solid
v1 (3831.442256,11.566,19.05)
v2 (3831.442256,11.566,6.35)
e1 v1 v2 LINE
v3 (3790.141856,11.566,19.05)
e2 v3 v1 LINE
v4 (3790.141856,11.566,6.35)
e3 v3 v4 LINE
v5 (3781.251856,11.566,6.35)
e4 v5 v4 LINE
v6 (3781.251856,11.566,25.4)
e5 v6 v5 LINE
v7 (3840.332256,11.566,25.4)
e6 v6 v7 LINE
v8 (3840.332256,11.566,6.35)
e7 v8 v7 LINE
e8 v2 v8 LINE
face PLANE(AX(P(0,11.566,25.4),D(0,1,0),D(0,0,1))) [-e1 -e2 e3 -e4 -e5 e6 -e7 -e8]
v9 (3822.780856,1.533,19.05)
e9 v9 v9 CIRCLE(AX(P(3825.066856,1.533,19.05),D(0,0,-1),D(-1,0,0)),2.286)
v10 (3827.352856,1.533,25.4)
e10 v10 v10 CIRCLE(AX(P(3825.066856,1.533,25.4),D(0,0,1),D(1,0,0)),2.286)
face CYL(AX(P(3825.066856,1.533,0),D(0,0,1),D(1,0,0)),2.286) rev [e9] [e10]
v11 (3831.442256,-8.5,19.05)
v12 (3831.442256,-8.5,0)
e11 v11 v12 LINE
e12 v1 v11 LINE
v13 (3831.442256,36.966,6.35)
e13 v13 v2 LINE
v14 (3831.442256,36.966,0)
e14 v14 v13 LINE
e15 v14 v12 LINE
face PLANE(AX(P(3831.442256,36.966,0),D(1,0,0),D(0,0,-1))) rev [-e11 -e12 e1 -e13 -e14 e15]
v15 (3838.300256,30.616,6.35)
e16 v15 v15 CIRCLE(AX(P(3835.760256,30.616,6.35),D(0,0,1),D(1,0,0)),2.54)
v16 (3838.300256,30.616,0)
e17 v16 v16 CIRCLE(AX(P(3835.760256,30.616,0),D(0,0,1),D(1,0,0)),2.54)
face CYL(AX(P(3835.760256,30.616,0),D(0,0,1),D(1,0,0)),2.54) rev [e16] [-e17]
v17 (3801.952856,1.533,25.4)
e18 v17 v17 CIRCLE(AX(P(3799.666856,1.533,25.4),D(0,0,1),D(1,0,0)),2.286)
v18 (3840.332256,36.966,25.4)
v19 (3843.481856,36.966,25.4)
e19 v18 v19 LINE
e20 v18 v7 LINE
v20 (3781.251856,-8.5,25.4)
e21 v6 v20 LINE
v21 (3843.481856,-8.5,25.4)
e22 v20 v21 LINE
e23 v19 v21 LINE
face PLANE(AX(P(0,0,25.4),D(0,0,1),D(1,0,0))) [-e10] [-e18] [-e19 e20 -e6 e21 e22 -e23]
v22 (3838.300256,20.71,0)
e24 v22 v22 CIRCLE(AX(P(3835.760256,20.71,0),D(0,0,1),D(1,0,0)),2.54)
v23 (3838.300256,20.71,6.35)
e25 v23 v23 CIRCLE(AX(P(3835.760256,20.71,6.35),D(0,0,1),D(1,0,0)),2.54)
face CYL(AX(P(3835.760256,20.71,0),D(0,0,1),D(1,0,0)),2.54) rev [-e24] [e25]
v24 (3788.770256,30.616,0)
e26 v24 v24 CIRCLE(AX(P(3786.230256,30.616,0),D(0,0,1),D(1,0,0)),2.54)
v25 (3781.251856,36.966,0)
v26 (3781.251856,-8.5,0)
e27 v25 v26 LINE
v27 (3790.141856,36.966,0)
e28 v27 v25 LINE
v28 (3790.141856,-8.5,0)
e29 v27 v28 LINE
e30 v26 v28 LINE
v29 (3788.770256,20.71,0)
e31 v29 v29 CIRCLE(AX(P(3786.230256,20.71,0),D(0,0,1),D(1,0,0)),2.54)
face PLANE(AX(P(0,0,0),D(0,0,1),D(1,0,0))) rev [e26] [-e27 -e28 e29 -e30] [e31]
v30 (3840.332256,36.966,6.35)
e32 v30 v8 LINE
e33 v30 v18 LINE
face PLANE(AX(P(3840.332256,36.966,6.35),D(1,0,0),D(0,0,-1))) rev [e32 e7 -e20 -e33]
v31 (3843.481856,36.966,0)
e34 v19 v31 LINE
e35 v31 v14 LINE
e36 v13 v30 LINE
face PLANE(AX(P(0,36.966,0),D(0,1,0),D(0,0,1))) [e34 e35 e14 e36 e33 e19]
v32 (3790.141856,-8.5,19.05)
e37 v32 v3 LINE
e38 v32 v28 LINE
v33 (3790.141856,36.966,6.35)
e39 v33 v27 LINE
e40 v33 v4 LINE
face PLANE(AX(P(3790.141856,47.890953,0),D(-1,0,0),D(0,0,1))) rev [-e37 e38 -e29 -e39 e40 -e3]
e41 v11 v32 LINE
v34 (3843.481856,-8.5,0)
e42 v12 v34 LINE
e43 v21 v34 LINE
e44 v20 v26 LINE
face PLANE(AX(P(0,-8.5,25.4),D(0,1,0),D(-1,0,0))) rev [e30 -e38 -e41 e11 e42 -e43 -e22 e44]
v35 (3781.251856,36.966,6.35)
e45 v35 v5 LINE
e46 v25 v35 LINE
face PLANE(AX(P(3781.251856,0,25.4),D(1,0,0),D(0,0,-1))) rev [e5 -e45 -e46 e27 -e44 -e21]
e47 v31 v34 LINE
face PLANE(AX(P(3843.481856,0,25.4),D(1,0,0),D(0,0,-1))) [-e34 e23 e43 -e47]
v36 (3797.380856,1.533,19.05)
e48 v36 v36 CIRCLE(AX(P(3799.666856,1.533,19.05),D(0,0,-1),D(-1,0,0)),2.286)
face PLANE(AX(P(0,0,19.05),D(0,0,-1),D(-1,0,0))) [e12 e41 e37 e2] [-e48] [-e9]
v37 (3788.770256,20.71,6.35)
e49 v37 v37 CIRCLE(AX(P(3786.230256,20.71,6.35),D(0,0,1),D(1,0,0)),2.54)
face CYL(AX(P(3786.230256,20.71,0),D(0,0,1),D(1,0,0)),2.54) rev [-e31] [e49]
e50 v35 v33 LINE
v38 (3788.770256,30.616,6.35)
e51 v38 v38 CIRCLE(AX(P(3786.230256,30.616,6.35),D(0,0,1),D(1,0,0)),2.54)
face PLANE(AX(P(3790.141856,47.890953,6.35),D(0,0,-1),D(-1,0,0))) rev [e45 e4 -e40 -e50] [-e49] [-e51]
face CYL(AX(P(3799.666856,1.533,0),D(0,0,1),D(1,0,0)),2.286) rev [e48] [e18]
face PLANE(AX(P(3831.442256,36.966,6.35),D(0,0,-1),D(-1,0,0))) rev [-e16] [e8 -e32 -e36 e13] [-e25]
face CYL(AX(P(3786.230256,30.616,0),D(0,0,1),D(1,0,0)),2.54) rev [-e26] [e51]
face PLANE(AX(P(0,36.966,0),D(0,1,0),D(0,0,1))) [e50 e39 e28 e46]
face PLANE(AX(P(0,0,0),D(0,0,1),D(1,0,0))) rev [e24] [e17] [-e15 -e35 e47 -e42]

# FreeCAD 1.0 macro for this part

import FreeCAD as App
import Part
import Sketcher

V = App.Vector
Q = App.Units.Quantity

doc = App.newDocument("Part")
body = doc.addObject("PartDesign::Body", "Body")

sketch1 = body.newObject("Sketcher::SketchObject", "Sketch")
sketch1.AttachmentSupport = (doc.getObject("XY_Plane"), [""])
sketch1.MapMode = "FlatFace"
sketch1.addGeometry([
    Part.LineSegment(V(3781, 12, 0), V(3781, -8, 0)),
    Part.LineSegment(V(3781, -8, 0), V(3843, -8, 0)),
    Part.LineSegment(V(3843, -8, 0), V(3843, 12, 0)),
    Part.LineSegment(V(3843, 12, 0), V(3781, 12, 0)),
], False)
sketch1.addConstraint([
    Sketcher.Constraint("Coincident", 0, 2, 1, 1),
    Sketcher.Constraint("Coincident", 1, 2, 2, 1),
    Sketcher.Constraint("Coincident", 2, 2, 3, 1),
    Sketcher.Constraint("Coincident", 3, 2, 0, 1),
    Sketcher.Constraint("Vertical", 0),
    Sketcher.Constraint("Horizontal", 1),
    Sketcher.Constraint("Vertical", 2),
    Sketcher.Constraint("Horizontal", 3),
    Sketcher.Constraint("DistanceX", 1, 1, 1, 2, Q("2.45 in")),
    Sketcher.Constraint("DistanceY", 0, 2, 0, 1, Q("0.79 in")),
    Sketcher.Constraint("DistanceY", 0, 2, -1, 1, Q("8.5 mm")),
    Sketcher.Constraint("DistanceX", -1, 1, 0, 2, Q("3781.251856 mm")),
])
pad1 = body.newObject("PartDesign::Pad", "Pad")
pad1.Profile = sketch1
pad1.Length = Q("1 in")

sketch2 = body.newObject("Sketcher::SketchObject", "Sketch001")
sketch2.AttachmentSupport = (doc.getObject("XZ_Plane"), [""])
sketch2.MapMode = "FlatFace"
sketch2.AttachmentOffset = App.Placement(V(0, 0, -11.566), App.Rotation())
sketch2.addGeometry([
    Part.LineSegment(V(3831.4, 0, 0), V(3831.4, 6.3, 0)),
    Part.LineSegment(V(3831.4, 6.3, 0), V(3840.3, 6.3, 0)),
    Part.LineSegment(V(3840.3, 6.3, 0), V(3840.3, 25.4, 0)),
    Part.LineSegment(V(3840.3, 25.4, 0), V(3843.5, 25.4, 0)),
    Part.LineSegment(V(3843.5, 25.4, 0), V(3843.5, 0, 0)),
    Part.LineSegment(V(3843.5, 0, 0), V(3831.4, 0, 0)),
], False)
sketch2.addConstraint([
    Sketcher.Constraint("Coincident", 0, 2, 1, 1),
    Sketcher.Constraint("Coincident", 1, 2, 2, 1),
    Sketcher.Constraint("Coincident", 2, 2, 3, 1),
    Sketcher.Constraint("Coincident", 3, 2, 4, 1),
    Sketcher.Constraint("Coincident", 4, 2, 5, 1),
    Sketcher.Constraint("Coincident", 5, 2, 0, 1),
    Sketcher.Constraint("Vertical", 0),
    Sketcher.Constraint("Horizontal", 1),
    Sketcher.Constraint("Vertical", 2),
    Sketcher.Constraint("Horizontal", 3),
    Sketcher.Constraint("Vertical", 4),
    Sketcher.Constraint("Horizontal", 5),
    Sketcher.Constraint("PointOnObject", 4, 2, -1),
    Sketcher.Constraint("DistanceY", 4, 2, 4, 1, Q("1 in")),
    Sketcher.Constraint("DistanceX", 1, 1, 1, 2, Q("0.35 in")),
    Sketcher.Constraint("DistanceY", 0, 1, 0, 2, Q("0.25 in")),
    Sketcher.Constraint("DistanceX", 3, 1, 3, 2, Q("0.124 in")),
    Sketcher.Constraint("DistanceX", -1, 1, 0, 2, Q("3831.442256 mm")),
])
pad2 = body.newObject("PartDesign::Pad", "Pad001")
pad2.Profile = sketch2
pad2.Length = Q("1 in")
pad2.Reversed = True

sketch3 = body.newObject("Sketcher::SketchObject", "Sketch002")
sketch3.AttachmentSupport = (doc.getObject("XZ_Plane"), [""])
sketch3.MapMode = "FlatFace"
sketch3.AttachmentOffset = App.Placement(V(0, 0, -11.566), App.Rotation())
sketch3.addGeometry([
    Part.LineSegment(V(3781, 0, 0), V(3781, 6, 0)),
    Part.LineSegment(V(3781, 6, 0), V(3790, 6, 0)),
    Part.LineSegment(V(3790, 6, 0), V(3790, 0, 0)),
    Part.LineSegment(V(3790, 0, 0), V(3781, 0, 0)),
], False)
sketch3.addConstraint([
    Sketcher.Constraint("Coincident", 0, 2, 1, 1),
    Sketcher.Constraint("Coincident", 1, 2, 2, 1),
    Sketcher.Constraint("Coincident", 2, 2, 3, 1),
    Sketcher.Constraint("Coincident", 3, 2, 0, 1),
    Sketcher.Constraint("Vertical", 0),
    Sketcher.Constraint("Horizontal", 1),
    Sketcher.Constraint("Vertical", 2),
    Sketcher.Constraint("Horizontal", 3),
    Sketcher.Constraint("PointOnObject", 2, 2, -1),
    Sketcher.Constraint("DistanceX", 1, 1, 1, 2, Q("0.35 in")),
    Sketcher.Constraint("DistanceY", 0, 1, 0, 2, Q("0.25 in")),
    Sketcher.Constraint("DistanceX", -1, 1, 0, 2, Q("3781.251856 mm")),
])
pad3 = body.newObject("PartDesign::Pad", "Pad002")
pad3.Profile = sketch3
pad3.Length = Q("1 in")
pad3.Reversed = True

sketch4 = body.newObject("Sketcher::SketchObject", "Sketch003")
sketch4.AttachmentSupport = (doc.getObject("XY_Plane"), [""])
sketch4.MapMode = "FlatFace"
sketch4.AttachmentOffset = App.Placement(V(0, 0, 0.25 * 25.4), App.Rotation())
sketch4.addGeometry([
    Part.Circle(V(3835.8, 30.6, 0), V(0, 0, 1), 2.5),
    Part.Circle(V(3835.8, 20.7, 0), V(0, 0, 1), 2.5),
    Part.Circle(V(3786.2, 20.7, 0), V(0, 0, 1), 2.5),
    Part.Circle(V(3786.2, 30.6, 0), V(0, 0, 1), 2.5),
], False)
sketch4.addConstraint([
    Sketcher.Constraint("Equal", 0, 1),
    Sketcher.Constraint("Equal", 1, 2),
    Sketcher.Constraint("Equal", 2, 3),
    Sketcher.Constraint("Horizontal", 1, 3, 2, 3),
    Sketcher.Constraint("Horizontal", 0, 3, 3, 3),
    Sketcher.Constraint("Vertical", 0, 3, 1, 3),
    Sketcher.Constraint("Vertical", 2, 3, 3, 3),
    Sketcher.Constraint("Diameter", 0, Q("0.2 in")),
    Sketcher.Constraint("DistanceY", 1, 3, 0, 3, Q("0.39 in")),
    Sketcher.Constraint("DistanceX", 2, 3, 1, 3, Q("1.95 in")),
    Sketcher.Constraint("DistanceY", -1, 1, 0, 3, Q("30.616 mm")),
    Sketcher.Constraint("DistanceX", -1, 1, 0, 3, Q("3835.760256 mm")),
])
pocket1 = body.newObject("PartDesign::Pocket", "Pocket")
pocket1.Profile = sketch4
pocket1.Type = "ThroughAll"

sketch5 = body.newObject("Sketcher::SketchObject", "Sketch004")
sketch5.AttachmentSupport = (doc.getObject("XY_Plane"), [""])
sketch5.MapMode = "FlatFace"
sketch5.addGeometry([
    Part.LineSegment(V(3831, 12, 0), V(3831, -8, 0)),
    Part.LineSegment(V(3831, -8, 0), V(3790, -8, 0)),
    Part.LineSegment(V(3790, -8, 0), V(3790, 12, 0)),
    Part.LineSegment(V(3790, 12, 0), V(3831, 12, 0)),
], False)
sketch5.addConstraint([
    Sketcher.Constraint("Coincident", 0, 2, 1, 1),
    Sketcher.Constraint("Coincident", 1, 2, 2, 1),
    Sketcher.Constraint("Coincident", 2, 2, 3, 1),
    Sketcher.Constraint("Coincident", 3, 2, 0, 1),
    Sketcher.Constraint("Vertical", 0),
    Sketcher.Constraint("Horizontal", 1),
    Sketcher.Constraint("Vertical", 2),
    Sketcher.Constraint("Horizontal", 3),
    Sketcher.Constraint("DistanceY", 0, 2, 0, 1, Q("0.79 in")),
    Sketcher.Constraint("DistanceX", 1, 2, 1, 1, Q("1.626 in")),
    Sketcher.Constraint("DistanceY", 0, 2, -1, 1, Q("8.5 mm")),
    Sketcher.Constraint("DistanceX", -1, 1, 0, 2, Q("3831.442256 mm")),
])
pocket2 = body.newObject("PartDesign::Pocket", "Pocket001")
pocket2.Profile = sketch5
pocket2.Length = Q("0.75 in")
pocket2.Reversed = True

sketch6 = body.newObject("Sketcher::SketchObject", "Sketch005")
sketch6.AttachmentSupport = (doc.getObject("XY_Plane"), [""])
sketch6.MapMode = "FlatFace"
sketch6.AttachmentOffset = App.Placement(V(0, 0, 1 * 25.4), App.Rotation())
sketch6.addGeometry([
    Part.Circle(V(3799.7, 1.5, 0), V(0, 0, 1), 2.3),
    Part.Circle(V(3825.1, 1.5, 0), V(0, 0, 1), 2.3),
], False)
sketch6.addConstraint([
    Sketcher.Constraint("Equal", 0, 1),
    Sketcher.Constraint("Horizontal", 0, 3, 1, 3),
    Sketcher.Constraint("Diameter", 0, Q("0.18 in")),
    Sketcher.Constraint("DistanceX", 0, 3, 1, 3, Q("1 in")),
    Sketcher.Constraint("DistanceY", -1, 1, 0, 3, Q("1.533 mm")),
    Sketcher.Constraint("DistanceX", -1, 1, 0, 3, Q("3799.666856 mm")),
])
pocket3 = body.newObject("PartDesign::Pocket", "Pocket002")
pocket3.Profile = sketch6
pocket3.Type = "ThroughAll"

doc.recompute()
